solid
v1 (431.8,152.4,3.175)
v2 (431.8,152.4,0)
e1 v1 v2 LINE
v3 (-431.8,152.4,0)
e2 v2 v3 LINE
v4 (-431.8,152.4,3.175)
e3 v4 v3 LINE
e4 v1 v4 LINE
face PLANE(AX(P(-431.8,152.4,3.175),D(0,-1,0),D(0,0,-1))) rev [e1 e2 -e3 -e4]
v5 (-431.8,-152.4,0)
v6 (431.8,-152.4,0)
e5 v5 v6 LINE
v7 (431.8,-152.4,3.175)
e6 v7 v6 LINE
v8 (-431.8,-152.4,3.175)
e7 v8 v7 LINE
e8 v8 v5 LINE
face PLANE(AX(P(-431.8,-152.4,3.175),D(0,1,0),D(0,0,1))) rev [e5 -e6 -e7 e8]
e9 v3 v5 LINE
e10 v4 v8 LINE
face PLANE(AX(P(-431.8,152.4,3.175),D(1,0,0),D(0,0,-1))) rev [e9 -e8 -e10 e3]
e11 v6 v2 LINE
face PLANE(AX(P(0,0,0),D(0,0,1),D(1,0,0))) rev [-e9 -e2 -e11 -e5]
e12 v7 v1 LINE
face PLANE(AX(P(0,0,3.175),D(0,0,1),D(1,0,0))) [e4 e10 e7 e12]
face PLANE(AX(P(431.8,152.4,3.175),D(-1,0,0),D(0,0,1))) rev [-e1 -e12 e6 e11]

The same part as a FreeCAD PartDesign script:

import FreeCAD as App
import Part
import Sketcher

V = App.Vector
Q = App.Units.Quantity

doc = App.newDocument("Part")
body = doc.addObject("PartDesign::Body", "Body")

# Sketch on XY plane
sketch1 = doc.addObject("Sketcher::SketchObject", "Sketch")
body.addObject(sketch1)
sketch1.AttachmentSupport = (doc.XY_Plane, [""])
sketch1.MapMode = "FlatFace"
sketch1.addGeometry(Part.LineSegment(V(-431.8, 152.4, 0), V(-431.8, -152.4, 0)), False)
sketch1.addGeometry(Part.LineSegment(V(-431.8, -152.4, 0), V(431.8, -152.4, 0)), False)
sketch1.addGeometry(Part.LineSegment(V(431.8, -152.4, 0), V(431.8, 152.4, 0)), False)
sketch1.addGeometry(Part.LineSegment(V(431.8, 152.4, 0), V(-431.8, 152.4, 0)), False)
sketch1.addConstraint(Sketcher.Constraint("Coincident", 0, 2, 1, 1))
sketch1.addConstraint(Sketcher.Constraint("Coincident", 1, 2, 2, 1))
sketch1.addConstraint(Sketcher.Constraint("Coincident", 2, 2, 3, 1))
sketch1.addConstraint(Sketcher.Constraint("Coincident", 3, 2, 0, 1))
sketch1.addConstraint(Sketcher.Constraint("Vertical", 0))
sketch1.addConstraint(Sketcher.Constraint("Horizontal", 1))
sketch1.addConstraint(Sketcher.Constraint("Vertical", 2))
sketch1.addConstraint(Sketcher.Constraint("Horizontal", 3))
sketch1.addConstraint(Sketcher.Constraint("Symmetric", 0, 2, 2, 2, -1, 1))
sketch1.addConstraint(Sketcher.Constraint("DistanceX", 1, 1, 1, 2, Q("34 in")))
sketch1.addConstraint(Sketcher.Constraint("DistanceY", 0, 2, 0, 1, Q("12 in")))
pad1 = doc.addObject("PartDesign::Pad", "Pad")
body.addObject(pad1)
pad1.Profile = sketch1
pad1.Length = Q("0.125 in")

doc.recompute()
